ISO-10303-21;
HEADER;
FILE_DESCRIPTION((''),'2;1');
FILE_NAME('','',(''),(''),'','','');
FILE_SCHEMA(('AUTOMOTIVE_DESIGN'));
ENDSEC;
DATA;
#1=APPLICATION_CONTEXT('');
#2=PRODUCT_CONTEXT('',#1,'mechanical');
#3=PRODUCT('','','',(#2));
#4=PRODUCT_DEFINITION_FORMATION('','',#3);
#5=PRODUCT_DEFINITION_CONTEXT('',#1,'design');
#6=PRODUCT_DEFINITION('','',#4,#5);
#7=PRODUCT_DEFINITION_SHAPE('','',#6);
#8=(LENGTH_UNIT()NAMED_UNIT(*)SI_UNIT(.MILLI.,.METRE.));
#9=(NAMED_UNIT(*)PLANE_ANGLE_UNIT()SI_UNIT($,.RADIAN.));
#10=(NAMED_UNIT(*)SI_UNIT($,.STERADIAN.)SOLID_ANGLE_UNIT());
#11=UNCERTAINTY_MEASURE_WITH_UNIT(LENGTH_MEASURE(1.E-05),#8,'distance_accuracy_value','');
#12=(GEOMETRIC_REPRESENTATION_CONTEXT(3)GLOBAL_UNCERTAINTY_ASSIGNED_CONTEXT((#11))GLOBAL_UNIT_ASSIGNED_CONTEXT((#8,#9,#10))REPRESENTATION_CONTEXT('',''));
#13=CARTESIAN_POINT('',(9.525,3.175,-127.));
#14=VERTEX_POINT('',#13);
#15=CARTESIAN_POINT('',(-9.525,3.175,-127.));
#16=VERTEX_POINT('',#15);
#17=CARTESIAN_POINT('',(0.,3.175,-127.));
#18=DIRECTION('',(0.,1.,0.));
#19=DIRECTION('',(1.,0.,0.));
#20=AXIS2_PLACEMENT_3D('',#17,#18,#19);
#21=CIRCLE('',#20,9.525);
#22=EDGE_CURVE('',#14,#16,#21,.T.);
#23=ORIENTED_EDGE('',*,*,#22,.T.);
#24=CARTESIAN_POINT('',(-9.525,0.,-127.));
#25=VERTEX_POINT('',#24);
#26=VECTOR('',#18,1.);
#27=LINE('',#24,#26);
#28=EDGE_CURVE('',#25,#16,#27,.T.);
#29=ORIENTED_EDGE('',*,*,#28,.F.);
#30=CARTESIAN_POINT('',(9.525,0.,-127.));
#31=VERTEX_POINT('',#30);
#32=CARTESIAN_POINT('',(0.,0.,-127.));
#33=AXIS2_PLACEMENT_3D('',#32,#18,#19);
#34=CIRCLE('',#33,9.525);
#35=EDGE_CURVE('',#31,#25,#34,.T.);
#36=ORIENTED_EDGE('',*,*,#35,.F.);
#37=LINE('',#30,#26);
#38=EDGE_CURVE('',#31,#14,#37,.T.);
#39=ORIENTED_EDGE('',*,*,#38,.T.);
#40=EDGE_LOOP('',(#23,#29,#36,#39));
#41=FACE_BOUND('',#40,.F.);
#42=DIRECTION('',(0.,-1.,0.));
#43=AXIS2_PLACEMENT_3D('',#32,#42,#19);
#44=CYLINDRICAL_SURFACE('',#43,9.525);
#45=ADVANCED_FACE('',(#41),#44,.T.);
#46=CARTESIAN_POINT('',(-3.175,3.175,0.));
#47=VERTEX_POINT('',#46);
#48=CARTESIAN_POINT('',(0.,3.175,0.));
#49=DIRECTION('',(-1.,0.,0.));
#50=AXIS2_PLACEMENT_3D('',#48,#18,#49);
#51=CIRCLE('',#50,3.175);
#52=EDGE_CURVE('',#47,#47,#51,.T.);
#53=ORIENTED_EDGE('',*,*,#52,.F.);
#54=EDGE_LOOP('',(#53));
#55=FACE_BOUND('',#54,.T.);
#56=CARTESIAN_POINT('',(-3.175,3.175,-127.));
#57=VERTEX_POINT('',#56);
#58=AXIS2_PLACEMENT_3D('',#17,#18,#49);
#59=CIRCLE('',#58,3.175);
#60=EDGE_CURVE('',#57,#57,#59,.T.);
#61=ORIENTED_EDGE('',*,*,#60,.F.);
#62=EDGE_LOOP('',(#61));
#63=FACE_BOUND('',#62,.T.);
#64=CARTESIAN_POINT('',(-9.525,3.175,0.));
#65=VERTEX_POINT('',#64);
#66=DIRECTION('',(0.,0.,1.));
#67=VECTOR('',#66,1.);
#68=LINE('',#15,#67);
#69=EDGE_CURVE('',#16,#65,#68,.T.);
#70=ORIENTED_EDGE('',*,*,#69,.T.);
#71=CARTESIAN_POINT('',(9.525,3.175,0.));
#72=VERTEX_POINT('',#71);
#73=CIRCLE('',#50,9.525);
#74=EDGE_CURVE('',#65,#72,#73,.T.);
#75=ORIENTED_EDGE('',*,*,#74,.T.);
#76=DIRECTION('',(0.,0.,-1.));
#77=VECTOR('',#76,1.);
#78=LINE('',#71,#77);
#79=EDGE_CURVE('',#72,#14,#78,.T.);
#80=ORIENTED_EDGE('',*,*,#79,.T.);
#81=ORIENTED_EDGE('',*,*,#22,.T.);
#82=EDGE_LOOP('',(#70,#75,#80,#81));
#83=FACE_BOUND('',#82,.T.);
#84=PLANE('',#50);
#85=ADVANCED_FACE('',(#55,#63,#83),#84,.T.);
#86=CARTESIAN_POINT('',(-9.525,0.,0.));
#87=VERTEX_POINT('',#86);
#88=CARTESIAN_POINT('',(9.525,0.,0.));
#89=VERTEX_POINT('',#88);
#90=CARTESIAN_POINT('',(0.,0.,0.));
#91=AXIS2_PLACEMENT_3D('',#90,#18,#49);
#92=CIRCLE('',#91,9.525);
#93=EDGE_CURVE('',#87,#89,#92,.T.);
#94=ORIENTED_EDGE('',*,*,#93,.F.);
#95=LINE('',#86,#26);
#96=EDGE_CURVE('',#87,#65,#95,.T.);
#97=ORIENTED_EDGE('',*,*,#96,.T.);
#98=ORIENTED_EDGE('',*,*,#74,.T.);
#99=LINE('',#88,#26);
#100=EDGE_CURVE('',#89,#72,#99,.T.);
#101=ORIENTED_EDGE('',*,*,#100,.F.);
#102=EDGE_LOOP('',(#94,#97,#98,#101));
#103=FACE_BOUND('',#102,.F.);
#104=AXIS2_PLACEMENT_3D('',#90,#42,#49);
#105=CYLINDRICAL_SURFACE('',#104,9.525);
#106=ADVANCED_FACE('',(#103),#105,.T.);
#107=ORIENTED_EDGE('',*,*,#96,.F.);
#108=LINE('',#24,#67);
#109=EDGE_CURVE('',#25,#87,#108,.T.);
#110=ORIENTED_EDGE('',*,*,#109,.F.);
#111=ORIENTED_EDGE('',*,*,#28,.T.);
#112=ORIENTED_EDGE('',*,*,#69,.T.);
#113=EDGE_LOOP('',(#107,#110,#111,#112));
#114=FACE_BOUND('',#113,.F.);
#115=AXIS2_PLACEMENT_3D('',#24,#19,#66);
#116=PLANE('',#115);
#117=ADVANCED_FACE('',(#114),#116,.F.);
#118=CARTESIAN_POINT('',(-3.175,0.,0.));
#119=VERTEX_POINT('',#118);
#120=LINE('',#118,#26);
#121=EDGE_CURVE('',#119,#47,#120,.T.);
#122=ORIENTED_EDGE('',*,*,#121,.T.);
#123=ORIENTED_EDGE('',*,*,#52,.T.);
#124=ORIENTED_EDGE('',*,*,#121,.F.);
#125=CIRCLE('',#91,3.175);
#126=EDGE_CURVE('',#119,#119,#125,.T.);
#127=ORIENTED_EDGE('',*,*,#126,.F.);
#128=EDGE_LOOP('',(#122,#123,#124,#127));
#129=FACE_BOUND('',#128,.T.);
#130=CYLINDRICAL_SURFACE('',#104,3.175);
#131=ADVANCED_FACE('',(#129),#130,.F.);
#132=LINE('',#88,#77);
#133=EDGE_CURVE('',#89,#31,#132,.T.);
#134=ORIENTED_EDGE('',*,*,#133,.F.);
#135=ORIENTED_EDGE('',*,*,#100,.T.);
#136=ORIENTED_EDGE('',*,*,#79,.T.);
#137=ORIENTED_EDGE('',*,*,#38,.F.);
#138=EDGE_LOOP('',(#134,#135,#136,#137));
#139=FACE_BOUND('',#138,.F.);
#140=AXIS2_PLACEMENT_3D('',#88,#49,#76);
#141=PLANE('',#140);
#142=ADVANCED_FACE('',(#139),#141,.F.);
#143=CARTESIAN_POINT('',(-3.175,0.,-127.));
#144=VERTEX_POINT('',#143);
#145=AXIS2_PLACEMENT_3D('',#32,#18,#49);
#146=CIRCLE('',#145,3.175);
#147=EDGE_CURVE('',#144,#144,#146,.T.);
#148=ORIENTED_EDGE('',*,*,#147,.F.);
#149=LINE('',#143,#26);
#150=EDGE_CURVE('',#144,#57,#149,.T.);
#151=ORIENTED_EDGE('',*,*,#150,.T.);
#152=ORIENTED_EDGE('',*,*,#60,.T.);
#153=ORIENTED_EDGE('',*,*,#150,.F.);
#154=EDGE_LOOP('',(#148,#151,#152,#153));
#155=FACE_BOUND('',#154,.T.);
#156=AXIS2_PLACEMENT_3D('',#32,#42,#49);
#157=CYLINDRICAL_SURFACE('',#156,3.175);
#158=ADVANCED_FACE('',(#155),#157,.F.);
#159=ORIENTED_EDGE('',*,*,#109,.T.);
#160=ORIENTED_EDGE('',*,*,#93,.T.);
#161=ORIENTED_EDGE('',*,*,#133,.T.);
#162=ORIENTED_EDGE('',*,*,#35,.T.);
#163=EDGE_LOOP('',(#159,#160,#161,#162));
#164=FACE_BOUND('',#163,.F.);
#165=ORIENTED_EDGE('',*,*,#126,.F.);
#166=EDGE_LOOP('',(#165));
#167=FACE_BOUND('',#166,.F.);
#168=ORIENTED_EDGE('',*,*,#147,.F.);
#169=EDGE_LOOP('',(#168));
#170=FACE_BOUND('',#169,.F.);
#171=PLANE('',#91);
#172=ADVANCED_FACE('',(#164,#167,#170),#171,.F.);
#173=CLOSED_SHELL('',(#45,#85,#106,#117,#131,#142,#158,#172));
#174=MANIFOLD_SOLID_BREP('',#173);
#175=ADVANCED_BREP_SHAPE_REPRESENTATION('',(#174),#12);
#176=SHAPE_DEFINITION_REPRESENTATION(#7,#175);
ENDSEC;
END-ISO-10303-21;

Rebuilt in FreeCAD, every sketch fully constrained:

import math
import FreeCAD as App
import Part
import Sketcher

V = App.Vector
Q = App.Units.Quantity

doc = App.newDocument("Part")
body = doc.addObject("PartDesign::Body", "Body")

sketch1 = body.newObject("Sketcher::SketchObject", "Sketch")
sketch1.AttachmentSupport = (doc.getObject("XZ_Plane"), [""])
sketch1.MapMode = "FlatFace"
sketch1.addGeometry([
    Part.ArcOfCircle(Part.Circle(V(0, 0, 0), V(0, 0, 1), 9.5), math.radians(0), math.radians(180)),
    Part.LineSegment(V(9.5, 0, 0), V(9.5, -127, 0)),
    Part.ArcOfCircle(Part.Circle(V(0, -127, 0), V(0, 0, 1), 9.5), math.radians(180), math.radians(360)),
    Part.LineSegment(V(-9.5, -127, 0), V(-9.5, 0, 0)),
    Part.Circle(V(0, -127, 0), V(0, 0, 1), 3.2),
    Part.Circle(V(0, 0, 0), V(0, 0, 1), 3.2),
], False)
sketch1.addConstraint([
    Sketcher.Constraint("Tangent", 0, 1, 1, 1),
    Sketcher.Constraint("Tangent", 1, 2, 2, 2),
    Sketcher.Constraint("Tangent", 2, 1, 3, 1),
    Sketcher.Constraint("Tangent", 3, 2, 0, 2),
    Sketcher.Constraint("Vertical", 1),
    Sketcher.Constraint("Vertical", 3),
    Sketcher.Constraint("Coincident", 0, 3, -1, 1),
    Sketcher.Constraint("Coincident", 5, 3, -1, 1),
    Sketcher.Constraint("Coincident", 4, 3, 2, 3),
    Sketcher.Constraint("Equal", 4, 5),
    Sketcher.Constraint("Diameter", 4, Q("0.25 in")),
    Sketcher.Constraint("DistanceY", 1, 2, 1, 1, Q("5 in")),
    Sketcher.Constraint("Radius", 0, Q("0.375 in")),
])
pad1 = body.newObject("PartDesign::Pad", "Pad")
pad1.Profile = sketch1
pad1.Length = Q("0.125 in")
pad1.Reversed = True

doc.recompute()
